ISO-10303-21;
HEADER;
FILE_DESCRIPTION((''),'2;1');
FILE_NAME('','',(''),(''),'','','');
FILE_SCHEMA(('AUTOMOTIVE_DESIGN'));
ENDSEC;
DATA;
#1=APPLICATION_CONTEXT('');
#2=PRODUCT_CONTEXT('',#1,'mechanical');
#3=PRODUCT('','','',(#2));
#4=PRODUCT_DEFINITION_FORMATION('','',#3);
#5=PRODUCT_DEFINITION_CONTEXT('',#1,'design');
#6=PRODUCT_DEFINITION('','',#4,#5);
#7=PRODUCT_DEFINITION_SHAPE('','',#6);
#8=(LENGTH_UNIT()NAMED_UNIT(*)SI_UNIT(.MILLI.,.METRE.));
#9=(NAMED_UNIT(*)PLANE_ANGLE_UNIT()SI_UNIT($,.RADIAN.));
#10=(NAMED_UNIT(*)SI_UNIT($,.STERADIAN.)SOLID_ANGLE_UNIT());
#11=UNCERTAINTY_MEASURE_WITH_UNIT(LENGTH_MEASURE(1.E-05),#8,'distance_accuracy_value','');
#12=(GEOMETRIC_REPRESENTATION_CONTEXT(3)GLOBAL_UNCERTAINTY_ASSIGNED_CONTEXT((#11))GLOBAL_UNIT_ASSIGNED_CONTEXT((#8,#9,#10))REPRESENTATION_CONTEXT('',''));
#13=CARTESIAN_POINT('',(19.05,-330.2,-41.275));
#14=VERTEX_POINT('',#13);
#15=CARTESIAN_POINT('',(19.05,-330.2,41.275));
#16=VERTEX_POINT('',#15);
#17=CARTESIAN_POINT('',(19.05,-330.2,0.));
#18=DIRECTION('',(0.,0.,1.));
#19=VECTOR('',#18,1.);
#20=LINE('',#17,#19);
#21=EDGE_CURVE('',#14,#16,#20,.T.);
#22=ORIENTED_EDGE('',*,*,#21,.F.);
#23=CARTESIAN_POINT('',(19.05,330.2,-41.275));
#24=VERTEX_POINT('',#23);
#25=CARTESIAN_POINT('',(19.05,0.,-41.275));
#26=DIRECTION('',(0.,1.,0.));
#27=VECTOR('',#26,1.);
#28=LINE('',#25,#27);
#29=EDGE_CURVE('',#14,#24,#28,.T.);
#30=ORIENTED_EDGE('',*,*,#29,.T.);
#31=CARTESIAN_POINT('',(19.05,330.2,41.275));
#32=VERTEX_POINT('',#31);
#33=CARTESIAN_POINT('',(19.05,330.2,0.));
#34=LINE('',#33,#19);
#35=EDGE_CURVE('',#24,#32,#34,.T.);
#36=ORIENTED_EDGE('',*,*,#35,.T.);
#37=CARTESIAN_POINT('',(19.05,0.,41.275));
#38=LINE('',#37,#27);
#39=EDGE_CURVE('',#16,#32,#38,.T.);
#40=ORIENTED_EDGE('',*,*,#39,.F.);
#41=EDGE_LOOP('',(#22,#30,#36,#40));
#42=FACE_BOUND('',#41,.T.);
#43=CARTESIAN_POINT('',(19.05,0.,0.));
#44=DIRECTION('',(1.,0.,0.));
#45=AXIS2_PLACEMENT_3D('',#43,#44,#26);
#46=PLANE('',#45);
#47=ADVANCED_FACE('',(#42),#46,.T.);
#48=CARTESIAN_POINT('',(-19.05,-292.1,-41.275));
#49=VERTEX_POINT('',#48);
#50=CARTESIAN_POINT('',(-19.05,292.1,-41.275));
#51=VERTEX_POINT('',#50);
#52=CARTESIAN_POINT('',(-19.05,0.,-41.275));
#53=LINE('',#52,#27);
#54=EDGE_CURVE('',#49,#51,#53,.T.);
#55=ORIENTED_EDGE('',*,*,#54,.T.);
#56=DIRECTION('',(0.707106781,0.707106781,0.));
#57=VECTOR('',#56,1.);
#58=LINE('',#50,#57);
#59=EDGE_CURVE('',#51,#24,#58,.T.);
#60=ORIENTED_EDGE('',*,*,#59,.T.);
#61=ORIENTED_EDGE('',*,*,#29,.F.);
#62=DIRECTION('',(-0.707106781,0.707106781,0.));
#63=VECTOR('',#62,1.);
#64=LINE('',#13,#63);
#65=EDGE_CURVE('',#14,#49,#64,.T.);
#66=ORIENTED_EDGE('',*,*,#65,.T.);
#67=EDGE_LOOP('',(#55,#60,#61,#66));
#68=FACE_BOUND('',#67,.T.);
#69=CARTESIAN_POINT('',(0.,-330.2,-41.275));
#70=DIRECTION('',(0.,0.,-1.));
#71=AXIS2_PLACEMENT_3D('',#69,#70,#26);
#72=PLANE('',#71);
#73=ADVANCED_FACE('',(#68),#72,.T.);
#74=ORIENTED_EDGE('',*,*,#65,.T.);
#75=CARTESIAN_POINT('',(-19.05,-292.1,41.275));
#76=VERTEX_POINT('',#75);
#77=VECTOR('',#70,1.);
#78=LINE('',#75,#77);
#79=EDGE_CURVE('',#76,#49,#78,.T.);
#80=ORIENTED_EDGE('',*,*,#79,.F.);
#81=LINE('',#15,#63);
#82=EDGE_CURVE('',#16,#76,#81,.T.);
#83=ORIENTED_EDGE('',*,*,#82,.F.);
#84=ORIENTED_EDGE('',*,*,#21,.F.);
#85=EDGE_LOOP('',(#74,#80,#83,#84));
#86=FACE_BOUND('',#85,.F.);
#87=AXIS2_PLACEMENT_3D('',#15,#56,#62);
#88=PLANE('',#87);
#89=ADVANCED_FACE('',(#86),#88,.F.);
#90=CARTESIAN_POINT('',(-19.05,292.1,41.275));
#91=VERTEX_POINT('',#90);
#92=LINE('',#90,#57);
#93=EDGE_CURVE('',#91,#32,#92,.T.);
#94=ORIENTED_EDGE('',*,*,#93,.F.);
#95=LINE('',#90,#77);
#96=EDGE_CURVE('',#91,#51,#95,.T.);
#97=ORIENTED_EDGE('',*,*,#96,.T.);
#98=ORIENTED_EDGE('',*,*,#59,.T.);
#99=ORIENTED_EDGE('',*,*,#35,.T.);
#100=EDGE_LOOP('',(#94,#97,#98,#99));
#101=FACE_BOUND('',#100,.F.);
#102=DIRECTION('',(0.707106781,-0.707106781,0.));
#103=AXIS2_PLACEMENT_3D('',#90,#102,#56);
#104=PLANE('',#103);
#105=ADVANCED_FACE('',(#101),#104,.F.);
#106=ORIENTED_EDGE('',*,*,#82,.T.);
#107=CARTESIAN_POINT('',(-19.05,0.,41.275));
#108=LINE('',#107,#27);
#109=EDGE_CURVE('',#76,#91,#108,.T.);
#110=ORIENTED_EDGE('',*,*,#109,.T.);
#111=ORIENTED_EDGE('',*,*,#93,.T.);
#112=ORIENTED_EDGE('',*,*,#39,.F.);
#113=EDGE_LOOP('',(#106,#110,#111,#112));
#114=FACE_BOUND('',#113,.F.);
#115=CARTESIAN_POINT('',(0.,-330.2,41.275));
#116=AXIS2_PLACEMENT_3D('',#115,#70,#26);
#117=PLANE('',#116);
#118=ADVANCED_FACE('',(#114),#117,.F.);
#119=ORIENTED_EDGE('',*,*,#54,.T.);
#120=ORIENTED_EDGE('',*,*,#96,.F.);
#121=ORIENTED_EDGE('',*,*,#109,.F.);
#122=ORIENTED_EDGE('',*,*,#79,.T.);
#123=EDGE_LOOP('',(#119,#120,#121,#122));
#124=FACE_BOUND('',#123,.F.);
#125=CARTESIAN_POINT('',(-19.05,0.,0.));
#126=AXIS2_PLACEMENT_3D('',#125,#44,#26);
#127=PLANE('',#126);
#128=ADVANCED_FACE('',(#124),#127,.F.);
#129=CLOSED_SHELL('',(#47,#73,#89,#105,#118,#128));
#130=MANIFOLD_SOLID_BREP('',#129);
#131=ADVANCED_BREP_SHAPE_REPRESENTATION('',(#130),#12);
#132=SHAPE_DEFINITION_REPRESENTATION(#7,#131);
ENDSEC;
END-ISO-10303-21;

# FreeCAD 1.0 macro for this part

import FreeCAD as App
import Part
import Sketcher
from FreeCAD import Vector
Q = App.Units.Quantity

doc = App.newDocument("Part")
params = doc.addObject("Spreadsheet::Sheet", "Params")
for row, (alias, value) in enumerate([
    ("sketch1_width", "26 in"),
    ("sketch1_height", "3.25 in"),
    ("pad1_length", "1.5 in"),
    ("sketch2_width", "1.5 in"),
], start=1):
    params.set(f"A{row}", alias)
    params.set(f"B{row}", "=" + value)
    params.setAlias(f"B{row}", alias)

body = doc.addObject("PartDesign::Body", "Body")

# Sketch on YZ plane
sketch1 = body.newObject("Sketcher::SketchObject", "Sketch")
sketch1.AttachmentSupport = (doc.getObject("YZ_Plane"), [""])
sketch1.MapMode = "FlatFace"
sketch1.addGeometry(Part.LineSegment(Vector(-330, 41, 0), Vector(-330, -41, 0)), False)
sketch1.addGeometry(Part.LineSegment(Vector(-330, -41, 0), Vector(330, -41, 0)), False)
sketch1.addGeometry(Part.LineSegment(Vector(330, -41, 0), Vector(330, 41, 0)), False)
sketch1.addGeometry(Part.LineSegment(Vector(330, 41, 0), Vector(-330, 41, 0)), False)
sketch1.addConstraint(Sketcher.Constraint("Coincident", 0, 2, 1, 1))
sketch1.addConstraint(Sketcher.Constraint("Coincident", 1, 2, 2, 1))
sketch1.addConstraint(Sketcher.Constraint("Coincident", 2, 2, 3, 1))
sketch1.addConstraint(Sketcher.Constraint("Coincident", 3, 2, 0, 1))
sketch1.addConstraint(Sketcher.Constraint("Vertical", 0))
sketch1.addConstraint(Sketcher.Constraint("Horizontal", 1))
sketch1.addConstraint(Sketcher.Constraint("Vertical", 2))
sketch1.addConstraint(Sketcher.Constraint("Horizontal", 3))
sketch1.addConstraint(Sketcher.Constraint("Symmetric", 0, 2, 2, 2, -1, 1))
sketch1.addConstraint(Sketcher.Constraint("DistanceX", 1, 1, 1, 2, Q("26 in")))
sketch1.addConstraint(Sketcher.Constraint("DistanceY", 0, 2, 0, 1, Q("3.25 in")))
sketch1.setExpression("Constraints[9]", "Params.sketch1_width")
sketch1.setExpression("Constraints[10]", "Params.sketch1_height")
pad1 = body.newObject("PartDesign::Pad", "Pad")
pad1.Profile = sketch1
pad1.setExpression("Length", "Params.pad1_length")
pad1.Midplane = True

# Sketch on XY plane
sketch2 = body.newObject("Sketcher::SketchObject", "Sketch001")
sketch2.AttachmentSupport = (doc.getObject("XY_Plane"), [""])
sketch2.MapMode = "FlatFace"
sketch2.AttachmentOffset = App.Placement(Vector(0, 0, 1.625 * 25.4), App.Rotation())
sketch2.addGeometry(Part.LineSegment(Vector(-19, 330, 0), Vector(-19, 292, 0)), False)
sketch2.addGeometry(Part.LineSegment(Vector(-19, 292, 0), Vector(19, 330, 0)), False)
sketch2.addGeometry(Part.LineSegment(Vector(19, 330, 0), Vector(-19, 330, 0)), False)
sketch2.addGeometry(Part.LineSegment(Vector(-19, -330, 0), Vector(19, -330, 0)), False)
sketch2.addGeometry(Part.LineSegment(Vector(19, -330, 0), Vector(-19, -292, 0)), False)
sketch2.addGeometry(Part.LineSegment(Vector(-19, -292, 0), Vector(-19, -330, 0)), False)
sketch2.addConstraint(Sketcher.Constraint("Coincident", 0, 2, 1, 1))
sketch2.addConstraint(Sketcher.Constraint("Coincident", 1, 2, 2, 1))
sketch2.addConstraint(Sketcher.Constraint("Coincident", 2, 2, 0, 1))
sketch2.addConstraint(Sketcher.Constraint("Coincident", 3, 2, 4, 1))
sketch2.addConstraint(Sketcher.Constraint("Coincident", 4, 2, 5, 1))
sketch2.addConstraint(Sketcher.Constraint("Coincident", 5, 2, 3, 1))
sketch2.addConstraint(Sketcher.Constraint("Vertical", 0))
sketch2.addConstraint(Sketcher.Constraint("Horizontal", 2))
sketch2.addConstraint(Sketcher.Constraint("Horizontal", 3))
sketch2.addConstraint(Sketcher.Constraint("Vertical", 5))
sketch2.addConstraint(Sketcher.Constraint("Symmetric", 2, 2, 3, 2, -1, 1))
sketch2.addConstraint(Sketcher.Constraint("Symmetric", 0, 2, 4, 2, -1))
sketch2.addConstraint(Sketcher.Constraint("Perpendicular", 1, 4))
sketch2.addConstraint(Sketcher.Constraint("Vertical", 1, 2, 3, 2))
sketch2.addConstraint(Sketcher.Constraint("DistanceX", 2, 2, 2, 1, Q("1.5 in")))
sketch2.addConstraint(Sketcher.Constraint("DistanceY", -1, 1, 1, 2, Q("13 in")))
sketch2.setExpression("Constraints[14]", "Params.sketch2_width")
pocket1 = body.newObject("PartDesign::Pocket", "Pocket")
pocket1.Profile = sketch2
pocket1.Type = "ThroughAll"

doc.recompute()
